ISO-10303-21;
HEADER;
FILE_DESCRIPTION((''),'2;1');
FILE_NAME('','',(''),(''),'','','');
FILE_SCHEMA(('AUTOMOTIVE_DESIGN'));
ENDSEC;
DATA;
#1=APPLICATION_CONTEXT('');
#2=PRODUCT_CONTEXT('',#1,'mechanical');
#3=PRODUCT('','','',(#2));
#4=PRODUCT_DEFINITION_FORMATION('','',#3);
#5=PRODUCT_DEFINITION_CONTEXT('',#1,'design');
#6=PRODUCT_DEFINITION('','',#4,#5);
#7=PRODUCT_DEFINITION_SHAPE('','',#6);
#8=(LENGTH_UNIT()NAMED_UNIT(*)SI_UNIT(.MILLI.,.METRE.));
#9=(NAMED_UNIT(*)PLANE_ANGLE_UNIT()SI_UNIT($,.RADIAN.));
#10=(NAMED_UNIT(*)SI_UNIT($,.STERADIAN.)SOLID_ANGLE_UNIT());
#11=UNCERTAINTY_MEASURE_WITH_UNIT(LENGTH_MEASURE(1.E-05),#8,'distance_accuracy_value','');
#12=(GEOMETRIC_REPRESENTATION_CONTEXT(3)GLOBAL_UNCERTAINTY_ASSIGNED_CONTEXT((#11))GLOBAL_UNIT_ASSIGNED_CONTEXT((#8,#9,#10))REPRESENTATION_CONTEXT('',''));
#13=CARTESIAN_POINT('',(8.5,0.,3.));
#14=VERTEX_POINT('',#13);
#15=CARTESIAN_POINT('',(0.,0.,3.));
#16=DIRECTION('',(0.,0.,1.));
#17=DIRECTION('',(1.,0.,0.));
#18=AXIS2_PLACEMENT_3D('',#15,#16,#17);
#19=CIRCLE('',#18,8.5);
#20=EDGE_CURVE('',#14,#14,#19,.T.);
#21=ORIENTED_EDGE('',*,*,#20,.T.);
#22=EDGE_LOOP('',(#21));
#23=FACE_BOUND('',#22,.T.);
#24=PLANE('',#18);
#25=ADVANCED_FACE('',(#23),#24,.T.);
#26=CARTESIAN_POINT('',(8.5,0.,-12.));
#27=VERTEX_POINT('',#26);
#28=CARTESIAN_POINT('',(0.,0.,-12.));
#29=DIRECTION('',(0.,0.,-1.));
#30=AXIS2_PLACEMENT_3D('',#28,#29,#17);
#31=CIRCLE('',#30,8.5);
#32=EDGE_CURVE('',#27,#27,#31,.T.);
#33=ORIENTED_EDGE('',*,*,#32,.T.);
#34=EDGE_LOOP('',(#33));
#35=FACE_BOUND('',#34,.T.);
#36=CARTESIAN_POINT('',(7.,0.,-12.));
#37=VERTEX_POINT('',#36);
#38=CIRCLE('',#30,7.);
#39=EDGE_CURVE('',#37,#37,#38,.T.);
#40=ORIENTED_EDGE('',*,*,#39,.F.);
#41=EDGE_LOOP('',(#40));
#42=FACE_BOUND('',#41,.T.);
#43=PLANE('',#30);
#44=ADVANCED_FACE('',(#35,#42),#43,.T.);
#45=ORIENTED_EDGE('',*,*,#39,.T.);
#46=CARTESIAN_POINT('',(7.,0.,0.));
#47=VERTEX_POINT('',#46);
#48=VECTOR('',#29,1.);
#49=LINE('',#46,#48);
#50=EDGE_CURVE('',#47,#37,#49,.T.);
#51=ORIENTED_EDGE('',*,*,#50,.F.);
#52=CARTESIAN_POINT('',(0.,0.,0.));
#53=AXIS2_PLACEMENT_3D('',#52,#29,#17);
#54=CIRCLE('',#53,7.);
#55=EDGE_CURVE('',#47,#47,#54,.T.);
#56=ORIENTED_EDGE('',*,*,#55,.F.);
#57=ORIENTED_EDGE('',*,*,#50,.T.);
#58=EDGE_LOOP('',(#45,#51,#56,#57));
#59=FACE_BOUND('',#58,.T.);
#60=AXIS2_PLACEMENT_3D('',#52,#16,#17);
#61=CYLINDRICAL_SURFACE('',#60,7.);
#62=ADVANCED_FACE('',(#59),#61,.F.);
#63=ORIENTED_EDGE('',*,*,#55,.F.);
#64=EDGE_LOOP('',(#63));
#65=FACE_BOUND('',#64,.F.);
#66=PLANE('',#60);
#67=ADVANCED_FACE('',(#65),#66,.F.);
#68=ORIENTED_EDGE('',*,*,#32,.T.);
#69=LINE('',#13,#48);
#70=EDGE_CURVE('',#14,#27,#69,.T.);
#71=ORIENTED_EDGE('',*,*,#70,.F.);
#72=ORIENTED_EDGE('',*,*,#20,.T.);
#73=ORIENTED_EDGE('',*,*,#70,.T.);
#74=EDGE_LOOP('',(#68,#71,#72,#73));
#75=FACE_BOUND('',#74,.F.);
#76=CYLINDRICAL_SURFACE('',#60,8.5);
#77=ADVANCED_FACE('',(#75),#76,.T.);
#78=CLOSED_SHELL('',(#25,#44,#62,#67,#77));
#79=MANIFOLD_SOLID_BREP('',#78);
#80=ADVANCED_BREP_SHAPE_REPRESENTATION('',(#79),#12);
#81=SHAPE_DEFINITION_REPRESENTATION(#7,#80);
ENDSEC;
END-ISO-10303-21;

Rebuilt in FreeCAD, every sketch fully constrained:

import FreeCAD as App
import Part
import Sketcher
from FreeCAD import Vector
Q = App.Units.Quantity

doc = App.newDocument("Part")
body = doc.addObject("PartDesign::Body", "Body")

sketch1 = doc.addObject("Sketcher::SketchObject", "Sketch")
body.addObject(sketch1)
sketch1.AttachmentSupport = (doc.XY_Plane, [""])
sketch1.MapMode = "FlatFace"
sketch1.addGeometry(Part.Circle(Vector(0, 0, 0), Vector(0, 0, 1), 8), False)
sketch1.addConstraint(Sketcher.Constraint("Coincident", 0, 3, -1, 1))
sketch1.addConstraint(Sketcher.Constraint("Diameter", 0, Q("17 mm")))
pad1 = doc.addObject("PartDesign::Pad", "Pad")
body.addObject(pad1)
pad1.Profile = sketch1
pad1.Length = 3

sketch2 = doc.addObject("Sketcher::SketchObject", "Sketch001")
body.addObject(sketch2)
sketch2.AttachmentSupport = (doc.XY_Plane, [""])
sketch2.MapMode = "FlatFace"
sketch2.addGeometry(Part.Circle(Vector(0, 0, 0), Vector(0, 0, 1), 8), False)
sketch2.addGeometry(Part.Circle(Vector(0, 0, 0), Vector(0, 0, 1), 7), False)
sketch2.addConstraint(Sketcher.Constraint("Coincident", 0, 3, -1, 1))
sketch2.addConstraint(Sketcher.Constraint("Coincident", 1, 3, -1, 1))
sketch2.addConstraint(Sketcher.Constraint("Diameter", 0, Q("17 mm")))
sketch2.addConstraint(Sketcher.Constraint("Diameter", 1, Q("14 mm")))
pad2 = doc.addObject("PartDesign::Pad", "Pad001")
body.addObject(pad2)
pad2.Profile = sketch2
pad2.Length = 12
pad2.Reversed = True

doc.recompute()
